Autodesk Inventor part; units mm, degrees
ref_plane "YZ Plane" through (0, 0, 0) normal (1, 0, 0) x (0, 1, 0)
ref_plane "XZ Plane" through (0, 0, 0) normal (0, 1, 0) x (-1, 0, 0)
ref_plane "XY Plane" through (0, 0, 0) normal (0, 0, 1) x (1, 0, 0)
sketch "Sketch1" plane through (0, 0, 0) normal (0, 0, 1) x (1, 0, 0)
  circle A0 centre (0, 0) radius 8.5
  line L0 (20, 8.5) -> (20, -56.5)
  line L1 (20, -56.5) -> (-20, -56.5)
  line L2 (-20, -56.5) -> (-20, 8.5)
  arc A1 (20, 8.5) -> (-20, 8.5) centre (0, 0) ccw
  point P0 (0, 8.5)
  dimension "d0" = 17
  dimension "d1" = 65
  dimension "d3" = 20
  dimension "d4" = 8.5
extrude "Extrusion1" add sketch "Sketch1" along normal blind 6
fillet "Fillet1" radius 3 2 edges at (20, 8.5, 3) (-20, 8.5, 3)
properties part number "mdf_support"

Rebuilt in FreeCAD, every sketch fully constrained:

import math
import FreeCAD as App
import Part
import Sketcher

V = App.Vector
Q = App.Units.Quantity


def edges_at(feature, points):
    """Names of the edges that pass closest to the given points."""
    edges = feature.Shape.Edges
    near = lambda p: min(range(len(edges)), key=lambda i: edges[i].distToShape(Part.Vertex(*p))[0])
    return sorted({f"Edge{near(p) + 1}" for p in points})

doc = App.newDocument("Part")
params = doc.addObject("Spreadsheet::Sheet", "Params")
for row, (alias, value) in enumerate([
    ("sketch1_diameter", "17 mm"),
    ("sketch1_height", "65 mm"),
    ("pad1_length", "6 mm"),
    ("fillet_radius", "3 mm"),
], start=1):
    params.set(f"A{row}", alias)
    params.set(f"B{row}", "=" + value)
    params.setAlias(f"B{row}", alias)

body = doc.addObject("PartDesign::Body", "Body")

# Sketch on XY plane
sketch1 = body.newObject("Sketcher::SketchObject", "Sketch")
sketch1.AttachmentSupport = (doc.getObject("XY_Plane"), [""])
sketch1.MapMode = "FlatFace"
sketch1.addGeometry([
    Part.LineSegment(V(20, -56.5, 0), V(20, 8.5, 0)),  # 0
    Part.ArcOfCircle(Part.Circle(V(0, 0, 0), V(0, 0, 1), 21.731314), math.radians(23.025492), math.radians(156.974508)),  # 1
    Part.LineSegment(V(-20, 8.5, 0), V(-20, -56.5, 0)),  # 2
    Part.LineSegment(V(-20, -56.5, 0), V(20, -56.5, 0)),  # 3
    Part.Circle(V(0, 0, 0), V(0, 0, 1), 8.5),  # 4
], False)
sketch1.addConstraint([
    Sketcher.Constraint("Coincident", 0, 2, 1, 1),
    Sketcher.Constraint("Coincident", 1, 2, 2, 1),
    Sketcher.Constraint("Coincident", 2, 2, 3, 1),
    Sketcher.Constraint("Coincident", 3, 2, 0, 1),
    Sketcher.Constraint("Vertical", 0),
    Sketcher.Constraint("Vertical", 2),
    Sketcher.Constraint("Horizontal", 3),
    Sketcher.Constraint("Coincident", 1, 3, -1, 1),
    Sketcher.Constraint("Coincident", 4, 3, -1, 1),
    Sketcher.Constraint("Horizontal", 0, 2, 1, 2),
    Sketcher.Constraint("Diameter", 4, Q("17 mm")),
    Sketcher.Constraint("DistanceY", 0, 1, 0, 2, Q("65 mm")),
    Sketcher.Constraint("DistanceX", -1, 1, 0, 2, Q("20 mm")),
    Sketcher.Constraint("DistanceY", -1, 1, 0, 2, Q("8.5 mm")),
])
sketch1.setExpression("Constraints[10]", "Params.sketch1_diameter")
sketch1.setExpression("Constraints[11]", "Params.sketch1_height")
pad1 = body.newObject("PartDesign::Pad", "Pad")
pad1.Profile = sketch1
pad1.setExpression("Length", "Params.pad1_length")
doc.recompute()

fillet = body.newObject("PartDesign::Fillet", "Fillet")
fillet.Base = (pad1, edges_at(pad1, [(20, 8.5, 3), (-20, 8.5, 3)]))
fillet.setExpression("Radius", "Params.fillet_radius")

doc.recompute()
